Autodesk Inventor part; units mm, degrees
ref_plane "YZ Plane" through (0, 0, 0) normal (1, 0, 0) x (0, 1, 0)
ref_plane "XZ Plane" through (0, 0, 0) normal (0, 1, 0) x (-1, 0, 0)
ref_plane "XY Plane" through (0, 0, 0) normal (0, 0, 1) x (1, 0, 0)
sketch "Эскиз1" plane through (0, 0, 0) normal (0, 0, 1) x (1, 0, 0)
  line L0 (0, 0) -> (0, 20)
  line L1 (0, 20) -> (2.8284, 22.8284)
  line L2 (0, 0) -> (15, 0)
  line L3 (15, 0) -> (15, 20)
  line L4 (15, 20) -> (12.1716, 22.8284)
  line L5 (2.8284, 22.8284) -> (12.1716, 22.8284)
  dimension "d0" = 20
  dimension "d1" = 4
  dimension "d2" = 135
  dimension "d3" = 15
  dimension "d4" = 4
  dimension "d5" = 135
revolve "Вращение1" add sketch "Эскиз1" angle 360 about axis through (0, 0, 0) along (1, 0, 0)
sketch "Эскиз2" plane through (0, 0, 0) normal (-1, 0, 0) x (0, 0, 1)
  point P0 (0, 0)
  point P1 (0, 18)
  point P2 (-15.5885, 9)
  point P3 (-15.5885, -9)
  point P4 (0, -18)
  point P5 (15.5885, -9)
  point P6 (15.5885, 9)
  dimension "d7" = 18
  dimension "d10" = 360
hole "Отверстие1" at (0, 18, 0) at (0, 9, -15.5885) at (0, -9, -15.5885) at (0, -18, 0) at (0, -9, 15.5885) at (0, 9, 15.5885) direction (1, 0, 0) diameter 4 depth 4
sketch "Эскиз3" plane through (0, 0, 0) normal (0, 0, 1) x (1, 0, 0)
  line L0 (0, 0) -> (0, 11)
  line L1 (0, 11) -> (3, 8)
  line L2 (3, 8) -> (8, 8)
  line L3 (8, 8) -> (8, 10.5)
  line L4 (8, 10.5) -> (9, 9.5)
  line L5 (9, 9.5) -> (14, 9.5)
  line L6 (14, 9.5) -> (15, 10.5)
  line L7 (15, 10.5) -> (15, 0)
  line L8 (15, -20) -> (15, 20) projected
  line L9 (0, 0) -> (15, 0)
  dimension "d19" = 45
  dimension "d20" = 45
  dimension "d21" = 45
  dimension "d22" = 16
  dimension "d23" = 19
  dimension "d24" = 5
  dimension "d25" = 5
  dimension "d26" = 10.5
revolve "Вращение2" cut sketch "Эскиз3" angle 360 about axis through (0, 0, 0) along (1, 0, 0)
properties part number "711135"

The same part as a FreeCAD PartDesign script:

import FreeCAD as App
import Part
import Sketcher
Q = App.Units.Quantity


def add_polygon(sketch, points):
    """Adds a closed chain of lines whose ends are joined by coincident constraints."""
    first, n = sketch.GeometryCount, len(points)
    for a, b in zip(points, points[1:] + points[:1]):
        sketch.addGeometry(Part.LineSegment(App.Vector(*a, 0), App.Vector(*b, 0)), False)
    for i in range(n):
        sketch.addConstraint(Sketcher.Constraint("Coincident", first + i, 2, first + (i + 1) % n, 1))

doc = App.newDocument("Part")
body = doc.addObject("PartDesign::Body", "Body")

# Sketch on XY plane
sketch1 = body.newObject("Sketcher::SketchObject", "Sketch")
sketch1.AttachmentSupport = (doc.getObject("XY_Plane"), [""])
sketch1.MapMode = "FlatFace"
add_polygon(sketch1, [(0, 20), (0, 0), (15, 0), (15, 20), (12.2, 22.8), (2.8, 22.8)])  # lines 0-5
sketch1.addConstraint([
    Sketcher.Constraint("Vertical", 0),
    Sketcher.Constraint("Horizontal", 1),
    Sketcher.Constraint("Vertical", 2),
    Sketcher.Constraint("Horizontal", 4),
    Sketcher.Constraint("Coincident", 0, 2, -1, 1),
    Sketcher.Constraint("Perpendicular", 3, 5),
    Sketcher.Constraint("Horizontal", 2, 2, 5, 2),
    Sketcher.Constraint("Equal", 3, 5),
    Sketcher.Constraint("DistanceX", 1, 1, 1, 2, Q("15 mm")),
    Sketcher.Constraint("DistanceY", 0, 2, 0, 1, Q("20 mm")),
    Sketcher.Constraint("Distance", 3, Q("4 mm")),
])
revolution = body.newObject("PartDesign::Revolution", "Revolution")
revolution.Profile = sketch1
revolution.ReferenceAxis = (sketch1, ["H_Axis"])
revolution.Angle = 360

# Sketch on YZ plane
sketch2 = body.newObject("Sketcher::SketchObject", "Sketch001")
sketch2.AttachmentSupport = (doc.getObject("YZ_Plane"), [""])
sketch2.MapMode = "FlatFace"
sketch2.addGeometry([
    Part.Circle(App.Vector(18, 0, 0), App.Vector(0, 0, 1), 2),  # 0
    Part.Circle(App.Vector(9, -15.6, 0), App.Vector(0, 0, 1), 2),  # 1
    Part.Circle(App.Vector(-9, -15.6, 0), App.Vector(0, 0, 1), 2),  # 2
    Part.Circle(App.Vector(-18, 0, 0), App.Vector(0, 0, 1), 2),  # 3
    Part.Circle(App.Vector(-9, 15.6, 0), App.Vector(0, 0, 1), 2),  # 4
    Part.Circle(App.Vector(9, 15.6, 0), App.Vector(0, 0, 1), 2),  # 5
], False)
sketch2.addConstraint([
    Sketcher.Constraint("Equal", 0, 1),
    Sketcher.Constraint("Equal", 1, 2),
    Sketcher.Constraint("Equal", 2, 3),
    Sketcher.Constraint("Equal", 3, 4),
    Sketcher.Constraint("Equal", 4, 5),
    Sketcher.Constraint("Symmetric", 0, 3, 3, 3, -1, 1),
    Sketcher.Constraint("Symmetric", 1, 3, 4, 3, -1, 1),
    Sketcher.Constraint("Symmetric", 2, 3, 5, 3, -1, 1),
    Sketcher.Constraint("Symmetric", 1, 3, 2, 3, -2),
    Sketcher.Constraint("PointOnObject", 0, 3, -1),
    Sketcher.Constraint("Diameter", 0, Q("4 mm")),
    Sketcher.Constraint("DistanceX", -1, 1, 0, 3, Q("18 mm")),
    Sketcher.Constraint("DistanceX", -1, 1, 1, 3, Q("9 mm")),
    Sketcher.Constraint("DistanceY", 2, 3, 4, 3, Q("31.177 mm")),
])
doc.recompute()
hole = body.newObject("PartDesign::Hole", "Hole")
hole.Profile = sketch2
hole.ThreadType = "None"
hole.Diameter = 4
hole.DepthType = "Dimension"
hole.Depth = 4
hole.DrillPoint = "Flat"
hole.Reversed = True

# Sketch on XY plane
sketch3 = body.newObject("Sketcher::SketchObject", "Sketch002")
sketch3.AttachmentSupport = (doc.getObject("XY_Plane"), [""])
sketch3.MapMode = "FlatFace"
add_polygon(sketch3, [(0, 11), (0, 0), (15, 0), (15, 10.5), (14, 9.5), (9, 9.5), (8, 10.5), (8, 8), (3, 8)])  # lines 0-8
sketch3.addConstraint([
    Sketcher.Constraint("Vertical", 0),
    Sketcher.Constraint("Horizontal", 1),
    Sketcher.Constraint("Vertical", 2),
    Sketcher.Constraint("Horizontal", 4),
    Sketcher.Constraint("Vertical", 6),
    Sketcher.Constraint("Horizontal", 7),
    Sketcher.Constraint("Coincident", 0, 2, -1, 1),
    Sketcher.Constraint("Perpendicular", 3, 5),
    Sketcher.Constraint("Parallel", 5, 8),
    Sketcher.Constraint("Horizontal", 2, 2, 5, 2),
    Sketcher.Constraint("Equal", 4, 7),
    Sketcher.Constraint("Equal", 3, 5),
    Sketcher.Constraint("DistanceX", 4, 2, 4, 1, Q("5 mm")),
    Sketcher.Constraint("DistanceY", 2, 1, 2, 2, Q("10.5 mm")),
    Sketcher.Constraint("DistanceX", 1, 1, 1, 2, Q("15 mm")),
    Sketcher.Constraint("DistanceY", 0, 2, 0, 1, Q("11 mm")),
    Sketcher.Constraint("DistanceY", 6, 2, 6, 1, Q("2.5 mm")),
])
groove = body.newObject("PartDesign::Groove", "Groove")
groove.Profile = sketch3
groove.ReferenceAxis = (sketch3, ["H_Axis"])
groove.Angle = 360

doc.recompute()
